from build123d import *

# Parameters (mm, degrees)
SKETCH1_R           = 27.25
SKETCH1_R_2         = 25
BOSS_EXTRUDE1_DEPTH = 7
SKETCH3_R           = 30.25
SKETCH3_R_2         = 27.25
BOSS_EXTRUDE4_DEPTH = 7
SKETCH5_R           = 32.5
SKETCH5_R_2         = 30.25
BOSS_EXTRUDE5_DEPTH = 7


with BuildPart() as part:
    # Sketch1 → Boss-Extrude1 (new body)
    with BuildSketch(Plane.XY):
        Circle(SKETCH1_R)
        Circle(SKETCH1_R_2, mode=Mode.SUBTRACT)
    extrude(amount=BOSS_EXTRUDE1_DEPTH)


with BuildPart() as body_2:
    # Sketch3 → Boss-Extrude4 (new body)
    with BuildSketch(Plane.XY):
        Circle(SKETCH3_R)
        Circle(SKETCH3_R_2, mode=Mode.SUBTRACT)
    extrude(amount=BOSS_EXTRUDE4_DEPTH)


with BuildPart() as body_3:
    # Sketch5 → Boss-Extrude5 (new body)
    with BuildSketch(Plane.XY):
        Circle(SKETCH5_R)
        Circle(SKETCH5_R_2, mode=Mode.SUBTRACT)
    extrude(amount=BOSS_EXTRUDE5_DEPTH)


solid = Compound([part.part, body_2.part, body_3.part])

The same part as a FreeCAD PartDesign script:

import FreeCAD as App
import Part
import Sketcher
from FreeCAD import Vector

doc = App.newDocument("Part")
params = doc.addObject("Spreadsheet::Sheet", "Params")
for row, (alias, value) in enumerate([
    ("sketch1_diameter", "50 mm"),
    ("sketch1_diameter2", "54.5 mm"),
    ("pad1_length", "7 mm"),
    ("sketch2_diameter", "60.5 mm"),
    ("sketch2_diameter2", "54.5 mm"),
    ("pad2_length", "7 mm"),
    ("sketch3_diameter", "65 mm"),
    ("sketch3_diameter2", "60.5 mm"),
    ("pad3_length", "7 mm"),
], start=1):
    params.set(f"A{row}", alias)
    params.set(f"B{row}", "=" + value)
    params.setAlias(f"B{row}", alias)

body = doc.addObject("PartDesign::Body", "Body")

# Sketch on XY plane
sketch1 = body.newObject("Sketcher::SketchObject", "Sketch")
sketch1.AttachmentSupport = (doc.getObject("XY_Plane"), [""])
sketch1.MapMode = "FlatFace"
sketch1.addGeometry([
    Part.Circle(Vector(0, 0, 0), Vector(0, 0, 1), 27),
    Part.Circle(Vector(0, 0, 0), Vector(0, 0, 1), 25),
], False)
sketch1.addConstraint([
    Sketcher.Constraint("Coincident", 0, 3, -1, 1),
    Sketcher.Constraint("Coincident", 1, 3, -1, 1),
    Sketcher.Constraint("Diameter", 1, 50.0),
    Sketcher.Constraint("Diameter", 0, 54.5),
])
sketch1.setExpression("Constraints[2]", "Params.sketch1_diameter")
sketch1.setExpression("Constraints[3]", "Params.sketch1_diameter2")
pad1 = body.newObject("PartDesign::Pad", "Pad")
pad1.Profile = sketch1
pad1.setExpression("Length", "Params.pad1_length")
body2 = doc.addObject("PartDesign::Body", "Body001")

# Sketch on XY plane
sketch2 = body2.newObject("Sketcher::SketchObject", "Sketch001")
sketch2.AttachmentSupport = (doc.getObject("XY_Plane001"), [""])
sketch2.MapMode = "FlatFace"
sketch2.addGeometry([
    Part.Circle(Vector(0, 0, 0), Vector(0, 0, 1), 30),
    Part.Circle(Vector(0, 0, 0), Vector(0, 0, 1), 27),
], False)
sketch2.addConstraint([
    Sketcher.Constraint("Coincident", 0, 3, -1, 1),
    Sketcher.Constraint("Coincident", 1, 3, -1, 1),
    Sketcher.Constraint("Diameter", 0, 60.5),
    Sketcher.Constraint("Diameter", 1, 54.5),
])
sketch2.setExpression("Constraints[2]", "Params.sketch2_diameter")
sketch2.setExpression("Constraints[3]", "Params.sketch2_diameter2")
pad2 = body2.newObject("PartDesign::Pad", "Pad001")
pad2.Profile = sketch2
pad2.setExpression("Length", "Params.pad2_length")
body3 = doc.addObject("PartDesign::Body", "Body002")

# Sketch on XY plane
sketch3 = body3.newObject("Sketcher::SketchObject", "Sketch002")
sketch3.AttachmentSupport = (doc.getObject("XY_Plane002"), [""])
sketch3.MapMode = "FlatFace"
sketch3.addGeometry([
    Part.Circle(Vector(0, 0, 0), Vector(0, 0, 1), 32),
    Part.Circle(Vector(0, 0, 0), Vector(0, 0, 1), 30),
], False)
sketch3.addConstraint([
    Sketcher.Constraint("Coincident", 0, 3, -1, 1),
    Sketcher.Constraint("Coincident", 1, 3, -1, 1),
    Sketcher.Constraint("Diameter", 0, 65.0),
    Sketcher.Constraint("Diameter", 1, 60.5),
])
sketch3.setExpression("Constraints[2]", "Params.sketch3_diameter")
sketch3.setExpression("Constraints[3]", "Params.sketch3_diameter2")
pad3 = body3.newObject("PartDesign::Pad", "Pad002")
pad3.Profile = sketch3
pad3.setExpression("Length", "Params.pad3_length")

doc.recompute()
